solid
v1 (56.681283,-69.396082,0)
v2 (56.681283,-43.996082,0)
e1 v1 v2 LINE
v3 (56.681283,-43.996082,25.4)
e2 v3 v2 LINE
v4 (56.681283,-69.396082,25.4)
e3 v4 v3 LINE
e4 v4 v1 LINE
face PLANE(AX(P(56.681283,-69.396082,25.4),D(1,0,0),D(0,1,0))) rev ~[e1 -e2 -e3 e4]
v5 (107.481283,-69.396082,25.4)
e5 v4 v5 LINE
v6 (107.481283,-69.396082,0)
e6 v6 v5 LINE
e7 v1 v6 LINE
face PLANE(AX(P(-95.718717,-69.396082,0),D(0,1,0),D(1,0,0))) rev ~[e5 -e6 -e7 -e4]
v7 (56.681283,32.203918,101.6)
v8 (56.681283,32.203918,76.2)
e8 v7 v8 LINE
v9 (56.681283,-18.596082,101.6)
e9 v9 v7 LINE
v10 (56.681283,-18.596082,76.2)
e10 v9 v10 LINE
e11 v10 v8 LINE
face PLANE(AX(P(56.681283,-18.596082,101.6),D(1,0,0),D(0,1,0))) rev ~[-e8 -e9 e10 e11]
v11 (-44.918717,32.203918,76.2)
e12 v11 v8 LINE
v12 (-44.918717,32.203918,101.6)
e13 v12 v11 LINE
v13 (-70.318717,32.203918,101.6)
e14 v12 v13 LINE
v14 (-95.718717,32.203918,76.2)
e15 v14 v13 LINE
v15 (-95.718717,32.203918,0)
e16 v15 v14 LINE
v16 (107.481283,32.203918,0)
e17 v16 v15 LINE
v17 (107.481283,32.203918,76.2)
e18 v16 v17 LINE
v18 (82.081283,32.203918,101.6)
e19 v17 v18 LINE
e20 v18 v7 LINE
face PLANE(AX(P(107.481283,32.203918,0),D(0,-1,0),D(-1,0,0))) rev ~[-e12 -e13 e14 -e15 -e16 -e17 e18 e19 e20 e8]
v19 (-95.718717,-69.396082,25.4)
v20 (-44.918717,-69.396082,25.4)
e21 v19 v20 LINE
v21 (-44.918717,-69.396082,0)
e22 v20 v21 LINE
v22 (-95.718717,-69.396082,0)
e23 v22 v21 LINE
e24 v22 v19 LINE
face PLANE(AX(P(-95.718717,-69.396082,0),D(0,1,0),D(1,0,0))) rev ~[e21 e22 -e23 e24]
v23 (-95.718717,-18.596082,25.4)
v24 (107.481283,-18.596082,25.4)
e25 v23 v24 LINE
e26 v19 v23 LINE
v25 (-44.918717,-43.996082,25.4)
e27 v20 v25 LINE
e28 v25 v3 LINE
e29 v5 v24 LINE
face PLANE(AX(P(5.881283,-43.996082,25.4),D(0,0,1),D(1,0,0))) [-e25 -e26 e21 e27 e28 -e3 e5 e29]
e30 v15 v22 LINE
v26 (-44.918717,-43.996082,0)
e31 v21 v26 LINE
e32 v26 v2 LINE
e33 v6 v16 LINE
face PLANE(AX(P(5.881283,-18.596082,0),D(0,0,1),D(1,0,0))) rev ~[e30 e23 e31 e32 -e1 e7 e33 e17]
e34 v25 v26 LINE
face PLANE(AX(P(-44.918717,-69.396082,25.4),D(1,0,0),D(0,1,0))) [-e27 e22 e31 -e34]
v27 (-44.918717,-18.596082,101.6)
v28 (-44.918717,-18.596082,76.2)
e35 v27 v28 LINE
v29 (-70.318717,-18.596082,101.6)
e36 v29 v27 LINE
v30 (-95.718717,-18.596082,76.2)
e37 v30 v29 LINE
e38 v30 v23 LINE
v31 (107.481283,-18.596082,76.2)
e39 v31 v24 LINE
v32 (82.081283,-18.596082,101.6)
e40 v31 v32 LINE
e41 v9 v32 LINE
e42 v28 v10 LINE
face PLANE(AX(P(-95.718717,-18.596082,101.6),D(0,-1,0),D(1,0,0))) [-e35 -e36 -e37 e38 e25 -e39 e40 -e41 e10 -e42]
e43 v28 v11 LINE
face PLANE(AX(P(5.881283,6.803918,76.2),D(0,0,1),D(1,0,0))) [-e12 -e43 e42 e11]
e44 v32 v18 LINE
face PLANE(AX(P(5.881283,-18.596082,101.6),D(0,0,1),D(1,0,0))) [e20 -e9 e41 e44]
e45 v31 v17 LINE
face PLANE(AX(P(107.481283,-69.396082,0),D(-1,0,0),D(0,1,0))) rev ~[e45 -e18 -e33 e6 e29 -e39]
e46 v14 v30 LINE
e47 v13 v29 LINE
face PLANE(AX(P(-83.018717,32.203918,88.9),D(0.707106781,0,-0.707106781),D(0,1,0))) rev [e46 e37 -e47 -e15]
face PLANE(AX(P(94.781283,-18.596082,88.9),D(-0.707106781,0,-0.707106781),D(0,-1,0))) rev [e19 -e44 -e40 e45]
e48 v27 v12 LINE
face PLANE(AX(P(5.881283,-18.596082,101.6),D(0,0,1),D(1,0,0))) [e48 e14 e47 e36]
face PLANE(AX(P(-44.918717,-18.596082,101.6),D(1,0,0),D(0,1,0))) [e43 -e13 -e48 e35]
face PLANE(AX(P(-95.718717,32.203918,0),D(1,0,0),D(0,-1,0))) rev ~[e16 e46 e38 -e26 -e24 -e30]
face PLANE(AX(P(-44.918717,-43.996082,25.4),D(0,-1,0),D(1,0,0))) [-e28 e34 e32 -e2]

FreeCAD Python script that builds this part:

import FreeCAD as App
import Part
import Sketcher
Q = App.Units.Quantity


def edges_at(feature, points):
    """Names of the edges that pass closest to the given points."""
    edges = feature.Shape.Edges
    near = lambda p: min(range(len(edges)), key=lambda i: edges[i].distToShape(Part.Vertex(*p))[0])
    return sorted({f"Edge{near(p) + 1}" for p in points})

doc = App.newDocument("Part")
body = doc.addObject("PartDesign::Body", "Body")

sketch1 = body.newObject("Sketcher::SketchObject", "Sketch")
sketch1.AttachmentSupport = (doc.getObject("XY_Plane"), [""])
sketch1.MapMode = "FlatFace"
sketch1.addGeometry(Part.LineSegment(App.Vector(-96, 32, 0), App.Vector(-96, -69, 0)), False)
sketch1.addGeometry(Part.LineSegment(App.Vector(-96, -69, 0), App.Vector(107, -69, 0)), False)
sketch1.addGeometry(Part.LineSegment(App.Vector(107, -69, 0), App.Vector(107, 32, 0)), False)
sketch1.addGeometry(Part.LineSegment(App.Vector(107, 32, 0), App.Vector(-96, 32, 0)), False)
sketch1.addConstraint(Sketcher.Constraint("Coincident", 0, 2, 1, 1))
sketch1.addConstraint(Sketcher.Constraint("Coincident", 1, 2, 2, 1))
sketch1.addConstraint(Sketcher.Constraint("Coincident", 2, 2, 3, 1))
sketch1.addConstraint(Sketcher.Constraint("Coincident", 3, 2, 0, 1))
sketch1.addConstraint(Sketcher.Constraint("Vertical", 0))
sketch1.addConstraint(Sketcher.Constraint("Horizontal", 1))
sketch1.addConstraint(Sketcher.Constraint("Vertical", 2))
sketch1.addConstraint(Sketcher.Constraint("Horizontal", 3))
sketch1.addConstraint(Sketcher.Constraint("DistanceX", 1, 1, 1, 2, Q("8 in")))
sketch1.addConstraint(Sketcher.Constraint("DistanceY", 0, 2, 0, 1, Q("4 in")))
sketch1.addConstraint(Sketcher.Constraint("DistanceX", 0, 2, -1, 1, Q("95.718717 mm")))
sketch1.addConstraint(Sketcher.Constraint("DistanceY", 0, 2, -1, 1, Q("69.396082 mm")))
pad1 = body.newObject("PartDesign::Pad", "Pad")
pad1.Profile = sketch1
pad1.Length = Q("4 in")

sketch2 = body.newObject("Sketcher::SketchObject", "Sketch001")
sketch2.AttachmentSupport = (doc.getObject("XY_Plane"), [""])
sketch2.MapMode = "FlatFace"
sketch2.AttachmentOffset = App.Placement(App.Vector(0, 0, 4 * 25.4), App.Rotation())
sketch2.addGeometry(Part.LineSegment(App.Vector(-96, -19, 0), App.Vector(-96, -69, 0)), False)
sketch2.addGeometry(Part.LineSegment(App.Vector(-96, -69, 0), App.Vector(107, -69, 0)), False)
sketch2.addGeometry(Part.LineSegment(App.Vector(107, -69, 0), App.Vector(107, -19, 0)), False)
sketch2.addGeometry(Part.LineSegment(App.Vector(107, -19, 0), App.Vector(-96, -19, 0)), False)
sketch2.addConstraint(Sketcher.Constraint("Coincident", 0, 2, 1, 1))
sketch2.addConstraint(Sketcher.Constraint("Coincident", 1, 2, 2, 1))
sketch2.addConstraint(Sketcher.Constraint("Coincident", 2, 2, 3, 1))
sketch2.addConstraint(Sketcher.Constraint("Coincident", 3, 2, 0, 1))
sketch2.addConstraint(Sketcher.Constraint("Vertical", 0))
sketch2.addConstraint(Sketcher.Constraint("Horizontal", 1))
sketch2.addConstraint(Sketcher.Constraint("Vertical", 2))
sketch2.addConstraint(Sketcher.Constraint("Horizontal", 3))
sketch2.addConstraint(Sketcher.Constraint("DistanceX", 1, 1, 1, 2, Q("8 in")))
sketch2.addConstraint(Sketcher.Constraint("DistanceY", 0, 2, 0, 1, Q("2 in")))
sketch2.addConstraint(Sketcher.Constraint("DistanceX", 0, 2, -1, 1, Q("95.718717 mm")))
sketch2.addConstraint(Sketcher.Constraint("DistanceY", 0, 2, -1, 1, Q("69.396082 mm")))
pocket1 = body.newObject("PartDesign::Pocket", "Pocket")
pocket1.Profile = sketch2
pocket1.Length = Q("3 in")

sketch3 = body.newObject("Sketcher::SketchObject", "Sketch002")
sketch3.AttachmentSupport = (doc.getObject("XY_Plane"), [""])
sketch3.MapMode = "FlatFace"
sketch3.AttachmentOffset = App.Placement(App.Vector(0, 0, 1 * 25.4), App.Rotation())
sketch3.addGeometry(Part.LineSegment(App.Vector(-45, -44, 0), App.Vector(-45, -69, 0)), False)
sketch3.addGeometry(Part.LineSegment(App.Vector(-45, -69, 0), App.Vector(57, -69, 0)), False)
sketch3.addGeometry(Part.LineSegment(App.Vector(57, -69, 0), App.Vector(57, -44, 0)), False)
sketch3.addGeometry(Part.LineSegment(App.Vector(57, -44, 0), App.Vector(-45, -44, 0)), False)
sketch3.addConstraint(Sketcher.Constraint("Coincident", 0, 2, 1, 1))
sketch3.addConstraint(Sketcher.Constraint("Coincident", 1, 2, 2, 1))
sketch3.addConstraint(Sketcher.Constraint("Coincident", 2, 2, 3, 1))
sketch3.addConstraint(Sketcher.Constraint("Coincident", 3, 2, 0, 1))
sketch3.addConstraint(Sketcher.Constraint("Vertical", 0))
sketch3.addConstraint(Sketcher.Constraint("Horizontal", 1))
sketch3.addConstraint(Sketcher.Constraint("Vertical", 2))
sketch3.addConstraint(Sketcher.Constraint("Horizontal", 3))
sketch3.addConstraint(Sketcher.Constraint("DistanceX", 1, 1, 1, 2, Q("4 in")))
sketch3.addConstraint(Sketcher.Constraint("DistanceY", 0, 2, 0, 1, Q("1 in")))
sketch3.addConstraint(Sketcher.Constraint("DistanceX", 0, 2, -1, 1, Q("44.918717 mm")))
sketch3.addConstraint(Sketcher.Constraint("DistanceY", 0, 2, -1, 1, Q("69.396082 mm")))
pocket2 = body.newObject("PartDesign::Pocket", "Pocket001")
pocket2.Profile = sketch3
pocket2.Length = Q("1 in")

sketch4 = body.newObject("Sketcher::SketchObject", "Sketch003")
sketch4.AttachmentSupport = (doc.getObject("XY_Plane"), [""])
sketch4.MapMode = "FlatFace"
sketch4.AttachmentOffset = App.Placement(App.Vector(0, 0, 4 * 25.4), App.Rotation())
sketch4.addGeometry(Part.LineSegment(App.Vector(-45, 32, 0), App.Vector(-45, -19, 0)), False)
sketch4.addGeometry(Part.LineSegment(App.Vector(-45, -19, 0), App.Vector(57, -19, 0)), False)
sketch4.addGeometry(Part.LineSegment(App.Vector(57, -19, 0), App.Vector(57, 32, 0)), False)
sketch4.addGeometry(Part.LineSegment(App.Vector(57, 32, 0), App.Vector(-45, 32, 0)), False)
sketch4.addConstraint(Sketcher.Constraint("Coincident", 0, 2, 1, 1))
sketch4.addConstraint(Sketcher.Constraint("Coincident", 1, 2, 2, 1))
sketch4.addConstraint(Sketcher.Constraint("Coincident", 2, 2, 3, 1))
sketch4.addConstraint(Sketcher.Constraint("Coincident", 3, 2, 0, 1))
sketch4.addConstraint(Sketcher.Constraint("Vertical", 0))
sketch4.addConstraint(Sketcher.Constraint("Horizontal", 1))
sketch4.addConstraint(Sketcher.Constraint("Vertical", 2))
sketch4.addConstraint(Sketcher.Constraint("Horizontal", 3))
sketch4.addConstraint(Sketcher.Constraint("DistanceX", 1, 1, 1, 2, Q("4 in")))
sketch4.addConstraint(Sketcher.Constraint("DistanceY", 0, 2, 0, 1, Q("2 in")))
sketch4.addConstraint(Sketcher.Constraint("DistanceX", 0, 2, -1, 1, Q("44.918717 mm")))
sketch4.addConstraint(Sketcher.Constraint("DistanceY", 0, 2, -1, 1, Q("18.596082 mm")))
pocket3 = body.newObject("PartDesign::Pocket", "Pocket002")
pocket3.Profile = sketch4
pocket3.Length = Q("1 in")
doc.recompute()

chamfer = body.newObject("PartDesign::Chamfer", "Chamfer")
chamfer.Base = (pocket3, edges_at(pocket3, [(107.481, 6.804, 101.6)]))
chamfer.Size = Q("1 in")
doc.recompute()

chamfer2 = body.newObject("PartDesign::Chamfer", "Chamfer001")
chamfer2.Base = (chamfer, edges_at(chamfer, [(-95.719, 6.804, 101.6)]))
chamfer2.Size = Q("1 in")

doc.recompute()
